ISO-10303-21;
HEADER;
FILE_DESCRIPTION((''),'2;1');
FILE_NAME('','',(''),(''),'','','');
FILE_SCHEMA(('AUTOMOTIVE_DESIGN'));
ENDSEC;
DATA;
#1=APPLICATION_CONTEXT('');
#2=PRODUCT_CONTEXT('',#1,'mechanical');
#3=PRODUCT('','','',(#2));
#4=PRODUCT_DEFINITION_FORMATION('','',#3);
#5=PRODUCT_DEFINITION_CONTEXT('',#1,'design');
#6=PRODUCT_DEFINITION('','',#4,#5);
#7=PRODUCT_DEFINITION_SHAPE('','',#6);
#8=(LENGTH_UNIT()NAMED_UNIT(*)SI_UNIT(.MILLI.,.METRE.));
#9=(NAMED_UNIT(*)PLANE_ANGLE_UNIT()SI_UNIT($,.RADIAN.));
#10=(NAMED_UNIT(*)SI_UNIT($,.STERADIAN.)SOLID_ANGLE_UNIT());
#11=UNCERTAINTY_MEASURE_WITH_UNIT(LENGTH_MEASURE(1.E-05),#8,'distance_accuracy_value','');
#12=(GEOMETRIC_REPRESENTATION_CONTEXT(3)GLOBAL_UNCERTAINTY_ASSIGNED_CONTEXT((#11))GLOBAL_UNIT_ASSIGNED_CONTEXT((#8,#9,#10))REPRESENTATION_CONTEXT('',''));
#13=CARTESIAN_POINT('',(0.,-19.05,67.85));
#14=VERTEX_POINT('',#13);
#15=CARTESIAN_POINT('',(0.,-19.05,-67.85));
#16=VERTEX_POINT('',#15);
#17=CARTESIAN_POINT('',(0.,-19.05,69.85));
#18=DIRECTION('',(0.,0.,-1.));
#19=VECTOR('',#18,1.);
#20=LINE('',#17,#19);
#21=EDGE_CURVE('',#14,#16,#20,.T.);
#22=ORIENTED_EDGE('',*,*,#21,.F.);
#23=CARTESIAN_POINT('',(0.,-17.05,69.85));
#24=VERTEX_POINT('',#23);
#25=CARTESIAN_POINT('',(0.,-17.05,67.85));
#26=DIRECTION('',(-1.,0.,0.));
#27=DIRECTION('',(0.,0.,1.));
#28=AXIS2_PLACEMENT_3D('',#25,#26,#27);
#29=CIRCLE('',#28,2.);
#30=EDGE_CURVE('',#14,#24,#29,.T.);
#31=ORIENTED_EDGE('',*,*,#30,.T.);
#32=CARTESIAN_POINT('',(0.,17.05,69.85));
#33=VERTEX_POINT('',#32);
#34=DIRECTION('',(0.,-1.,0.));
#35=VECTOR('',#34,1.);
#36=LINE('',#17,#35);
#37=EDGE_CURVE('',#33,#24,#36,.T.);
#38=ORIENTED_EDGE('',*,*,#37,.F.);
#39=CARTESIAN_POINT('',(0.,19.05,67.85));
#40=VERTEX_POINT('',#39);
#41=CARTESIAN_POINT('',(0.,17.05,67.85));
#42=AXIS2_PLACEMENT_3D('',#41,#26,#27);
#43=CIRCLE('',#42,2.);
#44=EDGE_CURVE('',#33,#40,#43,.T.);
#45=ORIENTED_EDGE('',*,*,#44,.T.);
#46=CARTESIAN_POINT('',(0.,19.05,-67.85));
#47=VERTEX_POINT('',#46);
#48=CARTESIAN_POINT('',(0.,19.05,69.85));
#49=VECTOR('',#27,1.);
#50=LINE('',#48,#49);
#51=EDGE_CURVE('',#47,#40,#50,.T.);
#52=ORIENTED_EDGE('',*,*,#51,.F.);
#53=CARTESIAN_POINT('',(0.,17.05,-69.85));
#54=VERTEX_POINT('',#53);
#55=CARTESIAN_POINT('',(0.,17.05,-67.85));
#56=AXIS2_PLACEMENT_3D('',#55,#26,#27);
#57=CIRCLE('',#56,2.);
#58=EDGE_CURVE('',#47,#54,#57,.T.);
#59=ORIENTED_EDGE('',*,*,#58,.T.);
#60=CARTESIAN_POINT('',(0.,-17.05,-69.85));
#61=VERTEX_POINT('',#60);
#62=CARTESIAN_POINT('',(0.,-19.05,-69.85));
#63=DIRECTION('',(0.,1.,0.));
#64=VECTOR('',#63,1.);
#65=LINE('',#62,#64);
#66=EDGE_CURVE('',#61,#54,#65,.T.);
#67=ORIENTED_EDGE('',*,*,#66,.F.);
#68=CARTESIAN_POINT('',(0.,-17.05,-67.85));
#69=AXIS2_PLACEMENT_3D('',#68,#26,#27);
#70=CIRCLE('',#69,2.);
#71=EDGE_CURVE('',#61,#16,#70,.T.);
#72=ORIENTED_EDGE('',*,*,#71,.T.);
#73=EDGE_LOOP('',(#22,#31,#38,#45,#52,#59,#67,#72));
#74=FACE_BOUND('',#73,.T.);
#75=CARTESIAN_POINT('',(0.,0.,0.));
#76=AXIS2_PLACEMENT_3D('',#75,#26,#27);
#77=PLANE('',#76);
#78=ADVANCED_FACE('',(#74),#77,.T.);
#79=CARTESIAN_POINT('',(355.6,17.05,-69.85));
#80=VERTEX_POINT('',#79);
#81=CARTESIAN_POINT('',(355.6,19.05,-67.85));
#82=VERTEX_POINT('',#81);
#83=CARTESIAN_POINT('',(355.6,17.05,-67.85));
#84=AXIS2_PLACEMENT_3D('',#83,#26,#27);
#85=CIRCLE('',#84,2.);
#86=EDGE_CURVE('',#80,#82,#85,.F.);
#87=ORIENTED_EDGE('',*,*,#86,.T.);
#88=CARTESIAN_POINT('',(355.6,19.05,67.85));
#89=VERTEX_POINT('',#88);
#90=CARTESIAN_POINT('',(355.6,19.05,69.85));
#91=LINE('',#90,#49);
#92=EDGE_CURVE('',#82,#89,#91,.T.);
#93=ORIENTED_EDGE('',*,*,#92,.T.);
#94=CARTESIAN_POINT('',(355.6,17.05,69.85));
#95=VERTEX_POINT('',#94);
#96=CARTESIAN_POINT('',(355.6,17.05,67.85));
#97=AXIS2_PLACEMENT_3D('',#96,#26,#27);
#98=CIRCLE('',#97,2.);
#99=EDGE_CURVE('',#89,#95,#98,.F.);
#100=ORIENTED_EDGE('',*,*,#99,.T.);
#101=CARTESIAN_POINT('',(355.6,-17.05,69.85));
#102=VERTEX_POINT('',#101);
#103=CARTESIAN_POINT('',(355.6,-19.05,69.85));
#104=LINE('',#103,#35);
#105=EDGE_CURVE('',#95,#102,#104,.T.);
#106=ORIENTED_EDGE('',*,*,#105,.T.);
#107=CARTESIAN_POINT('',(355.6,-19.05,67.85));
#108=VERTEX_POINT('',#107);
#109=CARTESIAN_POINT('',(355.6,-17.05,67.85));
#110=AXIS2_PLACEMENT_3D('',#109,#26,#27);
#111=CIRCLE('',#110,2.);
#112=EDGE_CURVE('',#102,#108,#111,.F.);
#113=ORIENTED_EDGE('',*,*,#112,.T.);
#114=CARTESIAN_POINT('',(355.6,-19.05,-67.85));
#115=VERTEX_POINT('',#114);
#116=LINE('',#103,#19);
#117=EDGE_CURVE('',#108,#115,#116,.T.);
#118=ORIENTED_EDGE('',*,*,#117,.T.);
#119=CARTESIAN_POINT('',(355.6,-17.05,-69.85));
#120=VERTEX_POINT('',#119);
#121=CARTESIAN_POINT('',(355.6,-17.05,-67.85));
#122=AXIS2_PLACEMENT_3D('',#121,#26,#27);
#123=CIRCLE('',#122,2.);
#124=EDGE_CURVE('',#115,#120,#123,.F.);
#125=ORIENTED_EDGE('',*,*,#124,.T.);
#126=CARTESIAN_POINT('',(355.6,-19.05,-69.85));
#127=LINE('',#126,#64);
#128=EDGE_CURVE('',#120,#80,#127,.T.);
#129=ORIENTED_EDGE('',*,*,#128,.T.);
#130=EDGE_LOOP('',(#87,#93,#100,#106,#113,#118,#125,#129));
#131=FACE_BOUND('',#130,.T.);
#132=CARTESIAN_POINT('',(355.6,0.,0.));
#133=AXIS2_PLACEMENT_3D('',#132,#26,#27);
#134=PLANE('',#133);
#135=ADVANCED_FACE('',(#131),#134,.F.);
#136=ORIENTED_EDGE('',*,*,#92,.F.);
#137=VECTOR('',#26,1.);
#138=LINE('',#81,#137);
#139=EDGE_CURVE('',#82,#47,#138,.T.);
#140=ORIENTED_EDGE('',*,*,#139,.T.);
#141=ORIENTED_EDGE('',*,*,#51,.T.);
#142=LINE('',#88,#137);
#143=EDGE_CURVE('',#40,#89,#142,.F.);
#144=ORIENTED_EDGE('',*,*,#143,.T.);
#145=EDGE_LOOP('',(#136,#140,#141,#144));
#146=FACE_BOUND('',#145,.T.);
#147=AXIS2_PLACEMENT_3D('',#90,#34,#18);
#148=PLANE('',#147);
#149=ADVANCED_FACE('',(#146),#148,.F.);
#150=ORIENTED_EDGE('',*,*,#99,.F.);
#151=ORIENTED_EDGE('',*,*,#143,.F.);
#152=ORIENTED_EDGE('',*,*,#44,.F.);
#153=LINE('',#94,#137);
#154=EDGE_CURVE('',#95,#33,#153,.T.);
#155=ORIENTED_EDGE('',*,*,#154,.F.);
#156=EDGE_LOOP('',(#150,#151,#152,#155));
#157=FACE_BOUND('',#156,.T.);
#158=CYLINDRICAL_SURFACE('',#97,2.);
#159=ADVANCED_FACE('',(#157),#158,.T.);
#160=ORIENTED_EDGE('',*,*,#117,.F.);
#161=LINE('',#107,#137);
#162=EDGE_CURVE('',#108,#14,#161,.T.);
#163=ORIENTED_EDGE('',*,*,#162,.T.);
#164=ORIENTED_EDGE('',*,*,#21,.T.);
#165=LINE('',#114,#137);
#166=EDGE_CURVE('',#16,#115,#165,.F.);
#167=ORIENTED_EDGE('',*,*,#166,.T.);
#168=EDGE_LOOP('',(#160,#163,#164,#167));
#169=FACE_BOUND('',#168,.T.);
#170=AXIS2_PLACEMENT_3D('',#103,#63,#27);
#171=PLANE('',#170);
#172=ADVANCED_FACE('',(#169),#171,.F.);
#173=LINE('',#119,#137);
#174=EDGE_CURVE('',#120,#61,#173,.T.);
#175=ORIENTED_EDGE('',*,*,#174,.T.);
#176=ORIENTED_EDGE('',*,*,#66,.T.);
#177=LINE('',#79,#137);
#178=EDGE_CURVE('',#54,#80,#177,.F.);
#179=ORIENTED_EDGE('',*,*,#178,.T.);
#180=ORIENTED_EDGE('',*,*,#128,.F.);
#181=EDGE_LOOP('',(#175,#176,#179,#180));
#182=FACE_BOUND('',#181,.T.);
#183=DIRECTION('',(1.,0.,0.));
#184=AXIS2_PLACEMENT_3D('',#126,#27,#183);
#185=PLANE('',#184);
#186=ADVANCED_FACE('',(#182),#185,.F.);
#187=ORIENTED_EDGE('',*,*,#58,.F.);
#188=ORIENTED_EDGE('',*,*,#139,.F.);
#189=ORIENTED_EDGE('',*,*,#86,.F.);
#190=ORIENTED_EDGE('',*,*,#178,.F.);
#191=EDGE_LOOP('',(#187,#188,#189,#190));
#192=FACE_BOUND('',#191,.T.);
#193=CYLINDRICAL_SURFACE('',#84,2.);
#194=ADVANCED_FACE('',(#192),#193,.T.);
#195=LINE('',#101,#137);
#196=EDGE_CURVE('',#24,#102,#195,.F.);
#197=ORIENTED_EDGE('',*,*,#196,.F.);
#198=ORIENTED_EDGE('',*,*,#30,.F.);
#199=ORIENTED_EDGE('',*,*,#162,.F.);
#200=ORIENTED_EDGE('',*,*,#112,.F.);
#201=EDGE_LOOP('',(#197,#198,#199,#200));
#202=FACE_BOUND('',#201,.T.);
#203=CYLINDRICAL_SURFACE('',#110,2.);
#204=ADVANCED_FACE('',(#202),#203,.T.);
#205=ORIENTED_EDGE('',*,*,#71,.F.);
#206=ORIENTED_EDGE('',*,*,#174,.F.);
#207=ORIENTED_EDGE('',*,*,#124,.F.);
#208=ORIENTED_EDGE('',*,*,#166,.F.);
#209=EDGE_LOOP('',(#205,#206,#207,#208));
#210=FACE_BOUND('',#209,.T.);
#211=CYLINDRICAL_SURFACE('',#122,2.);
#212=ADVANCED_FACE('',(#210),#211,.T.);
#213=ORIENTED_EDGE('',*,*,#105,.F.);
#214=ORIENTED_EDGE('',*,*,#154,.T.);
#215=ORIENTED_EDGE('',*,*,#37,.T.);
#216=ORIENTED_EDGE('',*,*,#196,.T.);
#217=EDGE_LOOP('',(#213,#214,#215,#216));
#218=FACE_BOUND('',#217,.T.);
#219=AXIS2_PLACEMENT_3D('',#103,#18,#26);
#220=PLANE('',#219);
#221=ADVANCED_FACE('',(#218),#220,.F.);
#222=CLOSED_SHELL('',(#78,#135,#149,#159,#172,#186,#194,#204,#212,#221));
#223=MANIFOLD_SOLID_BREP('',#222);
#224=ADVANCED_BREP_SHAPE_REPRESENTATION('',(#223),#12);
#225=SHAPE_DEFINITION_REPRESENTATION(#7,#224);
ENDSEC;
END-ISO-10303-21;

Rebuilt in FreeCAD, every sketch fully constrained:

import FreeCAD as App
import Part
import Sketcher
from FreeCAD import Vector
Q = App.Units.Quantity


def edges_at(feature, points):
    """Names of the edges that pass closest to the given points."""
    edges = feature.Shape.Edges
    near = lambda p: min(range(len(edges)), key=lambda i: edges[i].distToShape(Part.Vertex(*p))[0])
    return sorted({f"Edge{near(p) + 1}" for p in points})

doc = App.newDocument("Part")
body = doc.addObject("PartDesign::Body", "Body")

# Sketch on YZ plane
sketch1 = body.newObject("Sketcher::SketchObject", "Sketch")
sketch1.AttachmentSupport = (doc.getObject("YZ_Plane"), [""])
sketch1.MapMode = "FlatFace"
sketch1.addGeometry(Part.LineSegment(Vector(19, 70, 0), Vector(-19, 70, 0)), False)
sketch1.addGeometry(Part.LineSegment(Vector(-19, 70, 0), Vector(-19, -70, 0)), False)
sketch1.addGeometry(Part.LineSegment(Vector(-19, -70, 0), Vector(19, -70, 0)), False)
sketch1.addGeometry(Part.LineSegment(Vector(19, -70, 0), Vector(19, 70, 0)), False)
sketch1.addConstraint(Sketcher.Constraint("Coincident", 0, 2, 1, 1))
sketch1.addConstraint(Sketcher.Constraint("Coincident", 1, 2, 2, 1))
sketch1.addConstraint(Sketcher.Constraint("Coincident", 2, 2, 3, 1))
sketch1.addConstraint(Sketcher.Constraint("Coincident", 3, 2, 0, 1))
sketch1.addConstraint(Sketcher.Constraint("Horizontal", 0))
sketch1.addConstraint(Sketcher.Constraint("Vertical", 1))
sketch1.addConstraint(Sketcher.Constraint("Horizontal", 2))
sketch1.addConstraint(Sketcher.Constraint("Vertical", 3))
sketch1.addConstraint(Sketcher.Constraint("Symmetric", 0, 2, 2, 2, -1, 1))
sketch1.addConstraint(Sketcher.Constraint("DistanceX", 0, 2, 0, 1, Q("1.5 in")))
sketch1.addConstraint(Sketcher.Constraint("DistanceY", 1, 2, 1, 1, Q("5.5 in")))
pad1 = body.newObject("PartDesign::Pad", "Pad")
pad1.Profile = sketch1
pad1.Length = Q("14 in")
doc.recompute()

fillet = body.newObject("PartDesign::Fillet", "Fillet")
fillet.Base = (pad1, edges_at(pad1, [
    (177.8, -19.05, -69.85),
    (177.8, -19.05, 69.85),
    (177.8, 19.05, 69.85),
    (177.8, 19.05, -69.85),
]))
fillet.Radius = 2

doc.recompute()
